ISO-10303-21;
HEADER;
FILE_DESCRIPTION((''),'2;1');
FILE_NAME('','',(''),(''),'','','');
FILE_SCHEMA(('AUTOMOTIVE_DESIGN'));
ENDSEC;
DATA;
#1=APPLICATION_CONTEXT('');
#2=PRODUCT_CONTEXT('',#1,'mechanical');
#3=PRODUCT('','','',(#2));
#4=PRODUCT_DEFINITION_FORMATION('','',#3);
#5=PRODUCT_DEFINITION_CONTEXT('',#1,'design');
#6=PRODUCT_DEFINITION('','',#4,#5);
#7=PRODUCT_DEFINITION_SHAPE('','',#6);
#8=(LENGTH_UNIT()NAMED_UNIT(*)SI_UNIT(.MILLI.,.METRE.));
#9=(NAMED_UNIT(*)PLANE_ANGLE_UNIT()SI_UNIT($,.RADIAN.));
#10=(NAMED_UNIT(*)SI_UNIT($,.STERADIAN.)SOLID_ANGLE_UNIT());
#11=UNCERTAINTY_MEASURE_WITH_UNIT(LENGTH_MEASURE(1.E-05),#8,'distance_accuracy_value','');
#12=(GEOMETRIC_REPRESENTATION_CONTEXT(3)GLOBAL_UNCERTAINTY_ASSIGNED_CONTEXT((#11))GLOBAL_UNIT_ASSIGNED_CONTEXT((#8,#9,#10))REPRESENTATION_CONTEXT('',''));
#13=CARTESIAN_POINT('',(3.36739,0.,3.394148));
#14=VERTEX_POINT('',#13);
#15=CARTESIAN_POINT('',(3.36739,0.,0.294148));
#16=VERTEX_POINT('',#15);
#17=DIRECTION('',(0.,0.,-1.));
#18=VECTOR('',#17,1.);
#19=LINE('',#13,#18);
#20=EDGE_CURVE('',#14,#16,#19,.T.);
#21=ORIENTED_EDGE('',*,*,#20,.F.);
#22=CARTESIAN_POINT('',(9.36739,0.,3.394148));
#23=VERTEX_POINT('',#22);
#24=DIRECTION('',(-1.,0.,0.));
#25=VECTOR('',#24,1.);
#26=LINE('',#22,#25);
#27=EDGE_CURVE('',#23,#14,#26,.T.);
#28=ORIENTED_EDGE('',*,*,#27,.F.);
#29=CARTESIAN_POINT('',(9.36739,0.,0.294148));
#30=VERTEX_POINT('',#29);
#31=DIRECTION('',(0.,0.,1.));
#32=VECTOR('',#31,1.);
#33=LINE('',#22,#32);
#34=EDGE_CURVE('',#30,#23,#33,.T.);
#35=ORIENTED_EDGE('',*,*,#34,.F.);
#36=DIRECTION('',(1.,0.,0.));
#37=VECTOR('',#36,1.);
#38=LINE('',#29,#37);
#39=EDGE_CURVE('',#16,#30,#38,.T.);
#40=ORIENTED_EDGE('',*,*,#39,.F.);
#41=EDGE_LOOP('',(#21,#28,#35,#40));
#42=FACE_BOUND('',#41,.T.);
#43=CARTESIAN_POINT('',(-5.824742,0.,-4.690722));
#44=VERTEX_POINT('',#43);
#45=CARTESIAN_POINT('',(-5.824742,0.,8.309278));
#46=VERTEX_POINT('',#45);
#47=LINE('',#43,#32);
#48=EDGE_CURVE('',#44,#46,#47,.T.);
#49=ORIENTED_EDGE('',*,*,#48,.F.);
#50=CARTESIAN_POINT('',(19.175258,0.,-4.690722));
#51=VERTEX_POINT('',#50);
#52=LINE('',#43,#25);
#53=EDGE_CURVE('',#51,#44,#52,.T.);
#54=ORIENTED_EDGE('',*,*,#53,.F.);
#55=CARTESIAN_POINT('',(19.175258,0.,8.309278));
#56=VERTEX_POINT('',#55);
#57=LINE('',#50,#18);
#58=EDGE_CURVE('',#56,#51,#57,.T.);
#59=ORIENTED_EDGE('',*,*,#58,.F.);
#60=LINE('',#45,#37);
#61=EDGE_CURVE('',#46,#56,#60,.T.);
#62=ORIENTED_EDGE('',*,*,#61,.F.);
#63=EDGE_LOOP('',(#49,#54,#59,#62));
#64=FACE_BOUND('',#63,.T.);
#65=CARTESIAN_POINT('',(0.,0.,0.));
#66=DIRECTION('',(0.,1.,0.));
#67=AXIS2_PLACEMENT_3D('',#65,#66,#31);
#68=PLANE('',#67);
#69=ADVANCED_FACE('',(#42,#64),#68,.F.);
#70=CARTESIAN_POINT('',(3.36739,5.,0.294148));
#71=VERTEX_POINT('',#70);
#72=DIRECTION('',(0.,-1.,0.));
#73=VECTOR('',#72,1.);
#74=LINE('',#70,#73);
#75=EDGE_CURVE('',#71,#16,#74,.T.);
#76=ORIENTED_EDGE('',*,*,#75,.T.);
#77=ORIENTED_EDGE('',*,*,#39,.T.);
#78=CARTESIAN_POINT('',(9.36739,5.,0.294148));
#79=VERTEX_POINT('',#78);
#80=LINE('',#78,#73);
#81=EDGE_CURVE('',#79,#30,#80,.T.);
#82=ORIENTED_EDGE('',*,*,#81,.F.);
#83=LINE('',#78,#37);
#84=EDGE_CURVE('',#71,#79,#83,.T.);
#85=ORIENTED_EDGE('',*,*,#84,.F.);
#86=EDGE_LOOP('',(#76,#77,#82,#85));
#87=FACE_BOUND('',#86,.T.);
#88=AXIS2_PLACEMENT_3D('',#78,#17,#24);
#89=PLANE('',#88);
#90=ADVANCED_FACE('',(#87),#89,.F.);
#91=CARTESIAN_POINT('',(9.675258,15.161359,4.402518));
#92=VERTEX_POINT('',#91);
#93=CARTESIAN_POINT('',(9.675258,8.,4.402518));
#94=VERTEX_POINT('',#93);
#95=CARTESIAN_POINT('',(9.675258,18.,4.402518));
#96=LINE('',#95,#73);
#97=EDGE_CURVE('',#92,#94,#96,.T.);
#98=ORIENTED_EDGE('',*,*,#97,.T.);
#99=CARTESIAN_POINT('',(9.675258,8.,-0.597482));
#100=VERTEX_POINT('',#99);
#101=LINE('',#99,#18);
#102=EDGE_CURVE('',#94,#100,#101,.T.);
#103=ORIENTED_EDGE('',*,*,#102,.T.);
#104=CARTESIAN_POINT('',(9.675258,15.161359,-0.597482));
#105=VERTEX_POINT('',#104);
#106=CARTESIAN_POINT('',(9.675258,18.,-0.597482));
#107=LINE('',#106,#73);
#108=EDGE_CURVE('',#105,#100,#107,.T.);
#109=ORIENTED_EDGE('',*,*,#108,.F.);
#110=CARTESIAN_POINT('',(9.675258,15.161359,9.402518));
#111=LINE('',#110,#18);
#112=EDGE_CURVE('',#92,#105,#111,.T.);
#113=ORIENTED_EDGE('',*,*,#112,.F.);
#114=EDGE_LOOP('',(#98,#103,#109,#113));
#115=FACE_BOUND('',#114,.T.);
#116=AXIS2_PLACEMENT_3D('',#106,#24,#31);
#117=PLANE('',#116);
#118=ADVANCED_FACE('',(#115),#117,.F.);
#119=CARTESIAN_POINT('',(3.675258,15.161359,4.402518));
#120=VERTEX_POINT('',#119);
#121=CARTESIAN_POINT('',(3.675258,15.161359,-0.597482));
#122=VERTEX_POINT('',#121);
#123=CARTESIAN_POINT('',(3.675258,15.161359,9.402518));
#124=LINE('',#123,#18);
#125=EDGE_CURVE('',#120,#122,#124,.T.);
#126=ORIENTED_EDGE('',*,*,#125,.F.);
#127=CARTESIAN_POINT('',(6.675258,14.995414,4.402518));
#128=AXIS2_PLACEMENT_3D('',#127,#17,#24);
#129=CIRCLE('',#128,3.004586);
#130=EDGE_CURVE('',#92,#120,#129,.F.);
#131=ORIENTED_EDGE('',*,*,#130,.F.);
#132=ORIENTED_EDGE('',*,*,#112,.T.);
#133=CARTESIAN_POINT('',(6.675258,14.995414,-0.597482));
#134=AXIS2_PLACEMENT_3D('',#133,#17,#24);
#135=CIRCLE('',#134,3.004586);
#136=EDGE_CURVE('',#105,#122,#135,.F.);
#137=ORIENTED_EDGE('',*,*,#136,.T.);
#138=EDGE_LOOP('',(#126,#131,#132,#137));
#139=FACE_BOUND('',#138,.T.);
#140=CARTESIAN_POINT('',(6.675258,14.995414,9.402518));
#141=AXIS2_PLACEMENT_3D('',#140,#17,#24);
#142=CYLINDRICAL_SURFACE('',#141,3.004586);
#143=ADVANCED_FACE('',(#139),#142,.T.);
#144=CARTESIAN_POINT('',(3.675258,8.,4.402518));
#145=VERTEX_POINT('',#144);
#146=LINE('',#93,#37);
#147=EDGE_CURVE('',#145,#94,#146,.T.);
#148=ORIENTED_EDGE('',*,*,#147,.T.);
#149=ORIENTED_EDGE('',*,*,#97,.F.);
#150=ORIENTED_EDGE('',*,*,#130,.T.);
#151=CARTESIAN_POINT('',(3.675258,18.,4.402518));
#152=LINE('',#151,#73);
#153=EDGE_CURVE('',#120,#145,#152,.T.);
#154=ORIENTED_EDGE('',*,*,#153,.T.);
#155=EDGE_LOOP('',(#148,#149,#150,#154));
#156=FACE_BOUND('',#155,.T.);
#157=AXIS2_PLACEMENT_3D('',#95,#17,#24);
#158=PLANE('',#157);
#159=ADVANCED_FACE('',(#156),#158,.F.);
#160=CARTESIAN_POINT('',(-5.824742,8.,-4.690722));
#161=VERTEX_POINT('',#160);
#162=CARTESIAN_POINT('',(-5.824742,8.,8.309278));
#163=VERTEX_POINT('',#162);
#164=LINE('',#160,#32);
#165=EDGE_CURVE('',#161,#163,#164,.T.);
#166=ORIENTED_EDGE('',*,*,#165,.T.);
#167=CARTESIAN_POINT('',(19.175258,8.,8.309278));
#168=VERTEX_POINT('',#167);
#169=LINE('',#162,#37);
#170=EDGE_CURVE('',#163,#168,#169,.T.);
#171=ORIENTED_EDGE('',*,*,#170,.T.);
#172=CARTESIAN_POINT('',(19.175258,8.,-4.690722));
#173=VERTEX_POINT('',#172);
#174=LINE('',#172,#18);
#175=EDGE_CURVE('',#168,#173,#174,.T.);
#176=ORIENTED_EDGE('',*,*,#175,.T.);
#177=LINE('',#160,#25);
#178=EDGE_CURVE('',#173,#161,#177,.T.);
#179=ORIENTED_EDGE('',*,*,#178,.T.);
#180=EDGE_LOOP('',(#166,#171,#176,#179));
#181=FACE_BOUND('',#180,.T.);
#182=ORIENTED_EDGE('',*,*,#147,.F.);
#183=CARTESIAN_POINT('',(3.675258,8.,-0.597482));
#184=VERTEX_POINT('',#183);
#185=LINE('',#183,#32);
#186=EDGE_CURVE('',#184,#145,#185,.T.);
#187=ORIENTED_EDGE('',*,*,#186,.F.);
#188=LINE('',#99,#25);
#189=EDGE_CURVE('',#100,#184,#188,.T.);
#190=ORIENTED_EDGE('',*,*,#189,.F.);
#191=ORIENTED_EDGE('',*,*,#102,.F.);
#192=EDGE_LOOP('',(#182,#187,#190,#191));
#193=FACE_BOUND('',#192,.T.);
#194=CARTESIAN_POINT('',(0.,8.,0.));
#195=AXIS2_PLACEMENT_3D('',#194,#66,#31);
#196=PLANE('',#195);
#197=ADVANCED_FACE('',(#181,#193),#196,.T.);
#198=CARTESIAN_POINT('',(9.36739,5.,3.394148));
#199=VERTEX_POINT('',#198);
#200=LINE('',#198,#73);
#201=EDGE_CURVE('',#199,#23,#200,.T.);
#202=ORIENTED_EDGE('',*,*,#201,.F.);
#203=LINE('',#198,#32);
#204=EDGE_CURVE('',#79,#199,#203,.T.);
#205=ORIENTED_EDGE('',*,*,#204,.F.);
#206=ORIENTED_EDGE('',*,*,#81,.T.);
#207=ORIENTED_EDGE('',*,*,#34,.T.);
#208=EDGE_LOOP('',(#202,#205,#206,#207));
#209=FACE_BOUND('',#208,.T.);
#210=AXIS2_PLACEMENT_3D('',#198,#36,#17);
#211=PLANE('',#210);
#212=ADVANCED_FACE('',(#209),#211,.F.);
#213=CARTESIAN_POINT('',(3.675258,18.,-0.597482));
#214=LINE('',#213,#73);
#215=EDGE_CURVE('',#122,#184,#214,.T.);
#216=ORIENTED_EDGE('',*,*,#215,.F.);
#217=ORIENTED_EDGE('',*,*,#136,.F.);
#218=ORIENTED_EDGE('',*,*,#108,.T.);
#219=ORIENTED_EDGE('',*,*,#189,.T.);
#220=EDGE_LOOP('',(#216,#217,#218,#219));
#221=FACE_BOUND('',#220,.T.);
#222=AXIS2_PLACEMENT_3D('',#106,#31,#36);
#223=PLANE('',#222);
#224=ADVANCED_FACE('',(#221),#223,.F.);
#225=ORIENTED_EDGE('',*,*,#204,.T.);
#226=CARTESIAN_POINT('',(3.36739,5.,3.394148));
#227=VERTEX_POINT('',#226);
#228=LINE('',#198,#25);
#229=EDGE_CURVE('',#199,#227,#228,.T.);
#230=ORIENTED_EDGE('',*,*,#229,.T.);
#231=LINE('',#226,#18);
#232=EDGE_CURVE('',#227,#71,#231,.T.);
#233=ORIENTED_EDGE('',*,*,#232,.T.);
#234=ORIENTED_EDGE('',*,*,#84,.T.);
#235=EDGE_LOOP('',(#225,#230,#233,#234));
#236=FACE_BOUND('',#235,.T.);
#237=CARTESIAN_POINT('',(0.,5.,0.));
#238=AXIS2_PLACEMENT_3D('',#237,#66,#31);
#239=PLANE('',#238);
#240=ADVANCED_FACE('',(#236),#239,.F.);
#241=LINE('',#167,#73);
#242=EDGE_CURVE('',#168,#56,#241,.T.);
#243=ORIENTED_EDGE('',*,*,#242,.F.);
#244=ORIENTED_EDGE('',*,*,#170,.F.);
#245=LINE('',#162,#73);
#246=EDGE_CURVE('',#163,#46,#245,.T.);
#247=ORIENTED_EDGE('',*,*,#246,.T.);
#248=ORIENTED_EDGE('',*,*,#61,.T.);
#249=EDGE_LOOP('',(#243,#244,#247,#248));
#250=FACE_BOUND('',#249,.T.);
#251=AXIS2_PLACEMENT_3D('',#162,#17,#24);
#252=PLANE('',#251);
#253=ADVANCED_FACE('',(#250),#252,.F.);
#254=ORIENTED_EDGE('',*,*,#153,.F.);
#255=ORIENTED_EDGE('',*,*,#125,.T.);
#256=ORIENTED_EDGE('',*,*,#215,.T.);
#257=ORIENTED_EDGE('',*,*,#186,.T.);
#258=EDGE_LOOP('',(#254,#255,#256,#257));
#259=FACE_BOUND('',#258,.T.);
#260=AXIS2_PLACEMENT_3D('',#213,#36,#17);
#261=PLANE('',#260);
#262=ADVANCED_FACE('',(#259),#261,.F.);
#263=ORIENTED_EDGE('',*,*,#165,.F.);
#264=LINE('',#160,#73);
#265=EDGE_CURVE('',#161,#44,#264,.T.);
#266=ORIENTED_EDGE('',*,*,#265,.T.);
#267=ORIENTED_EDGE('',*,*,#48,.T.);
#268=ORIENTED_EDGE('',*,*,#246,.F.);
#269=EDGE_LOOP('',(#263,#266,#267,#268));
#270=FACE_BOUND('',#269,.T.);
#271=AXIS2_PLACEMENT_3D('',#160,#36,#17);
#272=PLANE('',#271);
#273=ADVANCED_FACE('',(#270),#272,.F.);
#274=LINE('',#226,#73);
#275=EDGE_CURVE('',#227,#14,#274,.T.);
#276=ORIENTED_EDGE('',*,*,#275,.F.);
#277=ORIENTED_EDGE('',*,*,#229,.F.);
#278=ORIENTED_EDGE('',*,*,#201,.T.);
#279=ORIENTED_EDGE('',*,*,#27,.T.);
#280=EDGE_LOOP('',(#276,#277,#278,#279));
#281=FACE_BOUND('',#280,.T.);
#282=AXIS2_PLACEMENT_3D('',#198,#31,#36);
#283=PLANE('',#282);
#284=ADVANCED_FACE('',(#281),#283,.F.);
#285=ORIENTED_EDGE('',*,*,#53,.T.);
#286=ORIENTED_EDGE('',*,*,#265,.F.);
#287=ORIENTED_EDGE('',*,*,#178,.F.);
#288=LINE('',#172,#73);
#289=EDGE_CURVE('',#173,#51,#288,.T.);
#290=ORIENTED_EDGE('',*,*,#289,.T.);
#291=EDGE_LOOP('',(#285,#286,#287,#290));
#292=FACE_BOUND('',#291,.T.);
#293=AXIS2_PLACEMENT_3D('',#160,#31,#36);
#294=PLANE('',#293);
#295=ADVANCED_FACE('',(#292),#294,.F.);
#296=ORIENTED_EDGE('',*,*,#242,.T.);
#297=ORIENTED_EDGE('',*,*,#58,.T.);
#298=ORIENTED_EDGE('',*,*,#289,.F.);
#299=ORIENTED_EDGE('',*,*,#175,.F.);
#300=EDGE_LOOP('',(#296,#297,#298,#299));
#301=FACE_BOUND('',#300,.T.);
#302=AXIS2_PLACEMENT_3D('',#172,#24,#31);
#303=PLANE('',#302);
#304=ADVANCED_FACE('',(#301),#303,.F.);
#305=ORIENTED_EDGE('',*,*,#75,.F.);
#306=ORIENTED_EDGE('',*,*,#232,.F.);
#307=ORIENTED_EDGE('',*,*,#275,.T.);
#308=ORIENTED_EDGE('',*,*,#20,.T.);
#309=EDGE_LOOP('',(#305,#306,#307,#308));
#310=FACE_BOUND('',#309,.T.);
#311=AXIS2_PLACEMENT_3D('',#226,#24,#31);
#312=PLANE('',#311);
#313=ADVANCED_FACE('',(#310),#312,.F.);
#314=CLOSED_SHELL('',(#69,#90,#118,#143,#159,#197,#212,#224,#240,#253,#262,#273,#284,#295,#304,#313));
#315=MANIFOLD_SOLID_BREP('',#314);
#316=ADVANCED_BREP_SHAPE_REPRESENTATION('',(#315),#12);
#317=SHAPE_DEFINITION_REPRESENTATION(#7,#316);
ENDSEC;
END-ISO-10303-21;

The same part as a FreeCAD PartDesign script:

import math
import FreeCAD as App
import Part
import Sketcher


def add_polygon(sketch, points):
    """Adds a closed chain of lines whose ends are joined by coincident constraints."""
    first, n = sketch.GeometryCount, len(points)
    for a, b in zip(points, points[1:] + points[:1]):
        sketch.addGeometry(Part.LineSegment(App.Vector(*a, 0), App.Vector(*b, 0)), False)
    for i in range(n):
        sketch.addConstraint(Sketcher.Constraint("Coincident", first + i, 2, first + (i + 1) % n, 1))

doc = App.newDocument("Part")
params = doc.addObject("Spreadsheet::Sheet", "Params")
for row, (alias, value) in enumerate([
    ("sketch1_width", "25 mm"),
    ("sketch1_height", "13 mm"),
    ("pad1_length", "8 mm"),
    ("sketch2_width", "6 mm"),
    ("sketch2_height", "3.1 mm"),
    ("pocket1_length", "5 mm"),
    ("sketch3_width", "6 mm"),
    ("sketch3_height", "5 mm"),
    ("pad2_length", "10 mm"),
    ("sketch4_width", "3 mm"),
    ("pocket2_length", "10 mm"),
], start=1):
    params.set(f"A{row}", alias)
    params.set(f"B{row}", "=" + value)
    params.setAlias(f"B{row}", alias)

body = doc.addObject("PartDesign::Body", "Body")

sketch1 = body.newObject("Sketcher::SketchObject", "Sketch")
sketch1.AttachmentSupport = (doc.getObject("XZ_Plane"), [""])
sketch1.MapMode = "FlatFace"
add_polygon(sketch1, [(-6, -5), (-6, 8), (19, 8), (19, -5)])
sketch1.addConstraint(Sketcher.Constraint("Vertical", 0))
sketch1.addConstraint(Sketcher.Constraint("Horizontal", 1))
sketch1.addConstraint(Sketcher.Constraint("Vertical", 2))
sketch1.addConstraint(Sketcher.Constraint("Horizontal", 3))
sketch1.addConstraint(Sketcher.Constraint("DistanceX", 1, 1, 1, 2, 25.0))
sketch1.addConstraint(Sketcher.Constraint("DistanceY", 0, 1, 0, 2, 13.0))
sketch1.addConstraint(Sketcher.Constraint("DistanceY", -1, 1, 0, 2, 8.309278))
sketch1.addConstraint(Sketcher.Constraint("DistanceX", 0, 2, -1, 1, 5.824742))
sketch1.setExpression("Constraints[8]", "Params.sketch1_width")
sketch1.setExpression("Constraints[9]", "Params.sketch1_height")
pad1 = body.newObject("PartDesign::Pad", "Pad")
pad1.Profile = sketch1
pad1.setExpression("Length", "Params.pad1_length")
pad1.Reversed = True

sketch2 = body.newObject("Sketcher::SketchObject", "Sketch001")
sketch2.AttachmentSupport = (doc.getObject("XZ_Plane"), [""])
sketch2.MapMode = "FlatFace"
add_polygon(sketch2, [(3.4, 3.4), (3.4, 0.3), (9.4, 0.3), (9.4, 3.4)])
sketch2.addConstraint(Sketcher.Constraint("Vertical", 0))
sketch2.addConstraint(Sketcher.Constraint("Horizontal", 1))
sketch2.addConstraint(Sketcher.Constraint("Vertical", 2))
sketch2.addConstraint(Sketcher.Constraint("Horizontal", 3))
sketch2.addConstraint(Sketcher.Constraint("DistanceX", 1, 1, 1, 2, 6.0))
sketch2.addConstraint(Sketcher.Constraint("DistanceY", 0, 2, 0, 1, 3.1))
sketch2.addConstraint(Sketcher.Constraint("DistanceX", -1, 1, 0, 2, 3.36739))
sketch2.addConstraint(Sketcher.Constraint("DistanceY", -1, 1, 0, 2, 0.294148))
sketch2.setExpression("Constraints[8]", "Params.sketch2_width")
sketch2.setExpression("Constraints[9]", "Params.sketch2_height")
pocket1 = body.newObject("PartDesign::Pocket", "Pocket")
pocket1.Profile = sketch2
pocket1.setExpression("Length", "Params.pocket1_length")

sketch3 = body.newObject("Sketcher::SketchObject", "Sketch002")
sketch3.AttachmentSupport = (doc.getObject("XZ_Plane"), [""])
sketch3.MapMode = "FlatFace"
sketch3.AttachmentOffset = App.Placement(App.Vector(0, 0, -8), App.Rotation())
add_polygon(sketch3, [(4, -1), (4, 4), (10, 4), (10, -1)])
sketch3.addConstraint(Sketcher.Constraint("Vertical", 0))
sketch3.addConstraint(Sketcher.Constraint("Horizontal", 1))
sketch3.addConstraint(Sketcher.Constraint("Vertical", 2))
sketch3.addConstraint(Sketcher.Constraint("Horizontal", 3))
sketch3.addConstraint(Sketcher.Constraint("DistanceX", 1, 1, 1, 2, 6.0))
sketch3.addConstraint(Sketcher.Constraint("DistanceY", 0, 1, 0, 2, 5.0))
sketch3.addConstraint(Sketcher.Constraint("DistanceY", -1, 1, 0, 2, 4.402518))
sketch3.addConstraint(Sketcher.Constraint("DistanceX", -1, 1, 0, 2, 3.675258))
sketch3.setExpression("Constraints[8]", "Params.sketch3_width")
sketch3.setExpression("Constraints[9]", "Params.sketch3_height")
pad2 = body.newObject("PartDesign::Pad", "Pad001")
pad2.Profile = sketch3
pad2.setExpression("Length", "Params.pad2_length")
pad2.Reversed = True

sketch4 = body.newObject("Sketcher::SketchObject", "Sketch003")
sketch4.AttachmentSupport = (doc.getObject("XY_Plane"), [""])
sketch4.MapMode = "FlatFace"
sketch4.AttachmentOffset = App.Placement(App.Vector(0, 0, -0.597482), App.Rotation())
sketch4.addGeometry(Part.LineSegment(App.Vector(3.7, 18, 0), App.Vector(6.7, 18, 0)), False)
sketch4.addGeometry(Part.ArcOfCircle(Part.Circle(App.Vector(6.7, 15, 0), App.Vector(0, 0, 1), 3), math.radians(90), math.radians(177)), False)
sketch4.addGeometry(Part.LineSegment(App.Vector(3.7, 15.2, 0), App.Vector(3.7, 18, 0)), False)
sketch4.addGeometry(Part.LineSegment(App.Vector(9.7, 18, 0), App.Vector(9.7, 15.2, 0)), False)
sketch4.addGeometry(Part.ArcOfCircle(Part.Circle(App.Vector(6.7, 15, 0), App.Vector(0, 0, 1), 3), math.radians(3), math.radians(90)), False)
sketch4.addGeometry(Part.LineSegment(App.Vector(6.7, 18, 0), App.Vector(9.7, 18, 0)), False)
sketch4.addConstraint(Sketcher.Constraint("Tangent", 0, 2, 1, 1))
sketch4.addConstraint(Sketcher.Constraint("Coincident", 1, 2, 2, 1))
sketch4.addConstraint(Sketcher.Constraint("Coincident", 2, 2, 0, 1))
sketch4.addConstraint(Sketcher.Constraint("Coincident", 3, 2, 4, 1))
sketch4.addConstraint(Sketcher.Constraint("Tangent", 4, 2, 5, 1))
sketch4.addConstraint(Sketcher.Constraint("Coincident", 5, 2, 3, 1))
sketch4.addConstraint(Sketcher.Constraint("Horizontal", 0))
sketch4.addConstraint(Sketcher.Constraint("Vertical", 2))
sketch4.addConstraint(Sketcher.Constraint("Vertical", 3))
sketch4.addConstraint(Sketcher.Constraint("Horizontal", 5))
sketch4.addConstraint(Sketcher.Constraint("Coincident", 4, 3, 1, 3))
sketch4.addConstraint(Sketcher.Constraint("Equal", 1, 4))
sketch4.addConstraint(Sketcher.Constraint("Horizontal", 1, 2, 3, 2))
sketch4.addConstraint(Sketcher.Constraint("DistanceX", 0, 1, 0, 2, 3.0))
sketch4.addConstraint(Sketcher.Constraint("DistanceY", -1, 1, 0, 2, 18.0))
sketch4.addConstraint(Sketcher.Constraint("Radius", 1, 3.004586))
sketch4.addConstraint(Sketcher.Constraint("DistanceX", -1, 1, 1, 3, 6.675258))
sketch4.setExpression("Constraints[13]", "Params.sketch4_width")
pocket2 = body.newObject("PartDesign::Pocket", "Pocket001")
pocket2.Profile = sketch4
pocket2.setExpression("Length", "Params.pocket2_length")
pocket2.Reversed = True

doc.recompute()
